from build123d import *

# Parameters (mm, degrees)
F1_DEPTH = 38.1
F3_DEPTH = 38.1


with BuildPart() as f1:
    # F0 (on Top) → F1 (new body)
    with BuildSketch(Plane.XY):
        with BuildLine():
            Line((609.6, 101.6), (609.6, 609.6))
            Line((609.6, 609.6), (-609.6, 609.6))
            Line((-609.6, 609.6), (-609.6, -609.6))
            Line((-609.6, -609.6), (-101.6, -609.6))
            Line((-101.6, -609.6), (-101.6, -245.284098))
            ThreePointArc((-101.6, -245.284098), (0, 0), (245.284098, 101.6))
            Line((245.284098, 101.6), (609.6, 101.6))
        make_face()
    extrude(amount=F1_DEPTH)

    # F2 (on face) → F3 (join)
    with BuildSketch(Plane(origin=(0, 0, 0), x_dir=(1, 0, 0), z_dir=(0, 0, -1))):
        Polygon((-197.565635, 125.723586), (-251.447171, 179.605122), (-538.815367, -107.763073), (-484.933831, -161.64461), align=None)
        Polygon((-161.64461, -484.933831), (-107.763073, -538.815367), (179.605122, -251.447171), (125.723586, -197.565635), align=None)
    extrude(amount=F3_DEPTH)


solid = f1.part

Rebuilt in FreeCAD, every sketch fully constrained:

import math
import FreeCAD as App
import Part
import Sketcher
from FreeCAD import Vector
Q = App.Units.Quantity


def add_polygon(sketch, points):
    """Adds a closed chain of lines whose ends are joined by coincident constraints."""
    first, n = sketch.GeometryCount, len(points)
    for a, b in zip(points, points[1:] + points[:1]):
        sketch.addGeometry(Part.LineSegment(App.Vector(*a, 0), App.Vector(*b, 0)), False)
    for i in range(n):
        sketch.addConstraint(Sketcher.Constraint("Coincident", first + i, 2, first + (i + 1) % n, 1))

doc = App.newDocument("Part")
params = doc.addObject("Spreadsheet::Sheet", "Params")
for row, (alias, value) in enumerate([
    ("sketch1_width", "48 in"),
    ("sketch1_width2", "20 in"),
    ("pad1_length", "1.5 in"),
    ("sketch2_length", "3 in"),
    ("sketch2_length2", "16 in"),
    ("pad2_length", "1.5 in"),
], start=1):
    params.set(f"A{row}", alias)
    params.set(f"B{row}", "=" + value)
    params.setAlias(f"B{row}", alias)

body = doc.addObject("PartDesign::Body", "Body")

sketch1 = body.newObject("Sketcher::SketchObject", "Sketch")
sketch1.AttachmentSupport = (doc.getObject("XY_Plane"), [""])
sketch1.MapMode = "FlatFace"
sketch1.addGeometry([
    Part.LineSegment(Vector(609.6, 101.6, 0), Vector(609.6, 609.6, 0)),
    Part.LineSegment(Vector(609.6, 609.6, 0), Vector(-609.6, 609.6, 0)),
    Part.LineSegment(Vector(-609.6, 609.6, 0), Vector(-609.6, -609.6, 0)),
    Part.LineSegment(Vector(-609.6, -609.6, 0), Vector(-101.6, -609.6, 0)),
    Part.LineSegment(Vector(-101.6, -609.6, 0), Vector(-101.6, -245.284098, 0)),
    Part.ArcOfCircle(Part.Circle(Vector(245.284098, -245.284098, 0), Vector(0, 0, 1), 346.884098), math.radians(90), math.radians(180)),
    Part.LineSegment(Vector(245.284098, 101.6, 0), Vector(609.6, 101.6, 0)),
], False)
sketch1.addConstraint([
    Sketcher.Constraint("Coincident", 0, 2, 1, 1),
    Sketcher.Constraint("Coincident", 1, 2, 2, 1),
    Sketcher.Constraint("Coincident", 2, 2, 3, 1),
    Sketcher.Constraint("Coincident", 3, 2, 4, 1),
    Sketcher.Constraint("Tangent", 4, 2, 5, 2),
    Sketcher.Constraint("Tangent", 5, 1, 6, 1),
    Sketcher.Constraint("Coincident", 6, 2, 0, 1),
    Sketcher.Constraint("Vertical", 0),
    Sketcher.Constraint("Horizontal", 1),
    Sketcher.Constraint("Vertical", 2),
    Sketcher.Constraint("Horizontal", 3),
    Sketcher.Constraint("Vertical", 4),
    Sketcher.Constraint("Horizontal", 6),
    Sketcher.Constraint("Symmetric", 0, 2, 2, 2, -1, 1),
    Sketcher.Constraint("Equal", 3, 0),
    Sketcher.Constraint("Equal", 1, 2),
    Sketcher.Constraint("DistanceX", 1, 2, 1, 1, Q("48 in")),
    Sketcher.Constraint("DistanceX", 3, 1, 3, 2, Q("20 in")),
    Sketcher.Constraint("Radius", 5, 346.884098),
])
sketch1.setExpression("Constraints[16]", "Params.sketch1_width")
sketch1.setExpression("Constraints[17]", "Params.sketch1_width2")
pad1 = body.newObject("PartDesign::Pad", "Pad")
pad1.Profile = sketch1
pad1.setExpression("Length", "Params.pad1_length")

sketch2 = body.newObject("Sketcher::SketchObject", "Sketch001")
sketch2.AttachmentSupport = (doc.getObject("XY_Plane"), [""])
sketch2.MapMode = "FlatFace"
add_polygon(sketch2, [(-197.565635, -125.723586), (-251.447171, -179.605122), (-538.815367, 107.763073), (-484.933831, 161.64461)])
add_polygon(sketch2, [(-161.64461, 484.933831), (-107.763073, 538.815367), (179.605122, 251.447171), (125.723586, 197.565635)])
sketch2.addConstraint([
    Sketcher.Constraint("Perpendicular", 0, 1),
    Sketcher.Constraint("Perpendicular", 1, 2),
    Sketcher.Constraint("Perpendicular", 2, 3),
    Sketcher.Constraint("Perpendicular", 3, 4),
    Sketcher.Constraint("Perpendicular", 4, 5),
    Sketcher.Constraint("Perpendicular", 5, 6),
    Sketcher.Constraint("Perpendicular", 6, 7),
    Sketcher.Constraint("Equal", 2, 4),
    Sketcher.Constraint("Equal", 3, 5),
    Sketcher.Constraint("Distance", 0, Q("3 in")),
    Sketcher.Constraint("Distance", 1, Q("16 in")),
    Sketcher.Constraint("Angle", 0, Q("-135 deg")),
    Sketcher.Constraint("DistanceX", 0, 2, 4, 2, 143.684098),
    Sketcher.Constraint("DistanceY", 1, 2, 5, 2, 143.684098),
    Sketcher.Constraint("DistanceX", 0, 2, -1, 1, 251.447171),
    Sketcher.Constraint("DistanceY", 0, 2, -1, 1, 179.605122),
])
sketch2.setExpression("Constraints[17]", "Params.sketch2_length")
sketch2.setExpression("Constraints[18]", "Params.sketch2_length2")
pad2 = body.newObject("PartDesign::Pad", "Pad001")
pad2.Profile = sketch2
pad2.setExpression("Length", "Params.pad2_length")
pad2.Reversed = True

doc.recompute()
